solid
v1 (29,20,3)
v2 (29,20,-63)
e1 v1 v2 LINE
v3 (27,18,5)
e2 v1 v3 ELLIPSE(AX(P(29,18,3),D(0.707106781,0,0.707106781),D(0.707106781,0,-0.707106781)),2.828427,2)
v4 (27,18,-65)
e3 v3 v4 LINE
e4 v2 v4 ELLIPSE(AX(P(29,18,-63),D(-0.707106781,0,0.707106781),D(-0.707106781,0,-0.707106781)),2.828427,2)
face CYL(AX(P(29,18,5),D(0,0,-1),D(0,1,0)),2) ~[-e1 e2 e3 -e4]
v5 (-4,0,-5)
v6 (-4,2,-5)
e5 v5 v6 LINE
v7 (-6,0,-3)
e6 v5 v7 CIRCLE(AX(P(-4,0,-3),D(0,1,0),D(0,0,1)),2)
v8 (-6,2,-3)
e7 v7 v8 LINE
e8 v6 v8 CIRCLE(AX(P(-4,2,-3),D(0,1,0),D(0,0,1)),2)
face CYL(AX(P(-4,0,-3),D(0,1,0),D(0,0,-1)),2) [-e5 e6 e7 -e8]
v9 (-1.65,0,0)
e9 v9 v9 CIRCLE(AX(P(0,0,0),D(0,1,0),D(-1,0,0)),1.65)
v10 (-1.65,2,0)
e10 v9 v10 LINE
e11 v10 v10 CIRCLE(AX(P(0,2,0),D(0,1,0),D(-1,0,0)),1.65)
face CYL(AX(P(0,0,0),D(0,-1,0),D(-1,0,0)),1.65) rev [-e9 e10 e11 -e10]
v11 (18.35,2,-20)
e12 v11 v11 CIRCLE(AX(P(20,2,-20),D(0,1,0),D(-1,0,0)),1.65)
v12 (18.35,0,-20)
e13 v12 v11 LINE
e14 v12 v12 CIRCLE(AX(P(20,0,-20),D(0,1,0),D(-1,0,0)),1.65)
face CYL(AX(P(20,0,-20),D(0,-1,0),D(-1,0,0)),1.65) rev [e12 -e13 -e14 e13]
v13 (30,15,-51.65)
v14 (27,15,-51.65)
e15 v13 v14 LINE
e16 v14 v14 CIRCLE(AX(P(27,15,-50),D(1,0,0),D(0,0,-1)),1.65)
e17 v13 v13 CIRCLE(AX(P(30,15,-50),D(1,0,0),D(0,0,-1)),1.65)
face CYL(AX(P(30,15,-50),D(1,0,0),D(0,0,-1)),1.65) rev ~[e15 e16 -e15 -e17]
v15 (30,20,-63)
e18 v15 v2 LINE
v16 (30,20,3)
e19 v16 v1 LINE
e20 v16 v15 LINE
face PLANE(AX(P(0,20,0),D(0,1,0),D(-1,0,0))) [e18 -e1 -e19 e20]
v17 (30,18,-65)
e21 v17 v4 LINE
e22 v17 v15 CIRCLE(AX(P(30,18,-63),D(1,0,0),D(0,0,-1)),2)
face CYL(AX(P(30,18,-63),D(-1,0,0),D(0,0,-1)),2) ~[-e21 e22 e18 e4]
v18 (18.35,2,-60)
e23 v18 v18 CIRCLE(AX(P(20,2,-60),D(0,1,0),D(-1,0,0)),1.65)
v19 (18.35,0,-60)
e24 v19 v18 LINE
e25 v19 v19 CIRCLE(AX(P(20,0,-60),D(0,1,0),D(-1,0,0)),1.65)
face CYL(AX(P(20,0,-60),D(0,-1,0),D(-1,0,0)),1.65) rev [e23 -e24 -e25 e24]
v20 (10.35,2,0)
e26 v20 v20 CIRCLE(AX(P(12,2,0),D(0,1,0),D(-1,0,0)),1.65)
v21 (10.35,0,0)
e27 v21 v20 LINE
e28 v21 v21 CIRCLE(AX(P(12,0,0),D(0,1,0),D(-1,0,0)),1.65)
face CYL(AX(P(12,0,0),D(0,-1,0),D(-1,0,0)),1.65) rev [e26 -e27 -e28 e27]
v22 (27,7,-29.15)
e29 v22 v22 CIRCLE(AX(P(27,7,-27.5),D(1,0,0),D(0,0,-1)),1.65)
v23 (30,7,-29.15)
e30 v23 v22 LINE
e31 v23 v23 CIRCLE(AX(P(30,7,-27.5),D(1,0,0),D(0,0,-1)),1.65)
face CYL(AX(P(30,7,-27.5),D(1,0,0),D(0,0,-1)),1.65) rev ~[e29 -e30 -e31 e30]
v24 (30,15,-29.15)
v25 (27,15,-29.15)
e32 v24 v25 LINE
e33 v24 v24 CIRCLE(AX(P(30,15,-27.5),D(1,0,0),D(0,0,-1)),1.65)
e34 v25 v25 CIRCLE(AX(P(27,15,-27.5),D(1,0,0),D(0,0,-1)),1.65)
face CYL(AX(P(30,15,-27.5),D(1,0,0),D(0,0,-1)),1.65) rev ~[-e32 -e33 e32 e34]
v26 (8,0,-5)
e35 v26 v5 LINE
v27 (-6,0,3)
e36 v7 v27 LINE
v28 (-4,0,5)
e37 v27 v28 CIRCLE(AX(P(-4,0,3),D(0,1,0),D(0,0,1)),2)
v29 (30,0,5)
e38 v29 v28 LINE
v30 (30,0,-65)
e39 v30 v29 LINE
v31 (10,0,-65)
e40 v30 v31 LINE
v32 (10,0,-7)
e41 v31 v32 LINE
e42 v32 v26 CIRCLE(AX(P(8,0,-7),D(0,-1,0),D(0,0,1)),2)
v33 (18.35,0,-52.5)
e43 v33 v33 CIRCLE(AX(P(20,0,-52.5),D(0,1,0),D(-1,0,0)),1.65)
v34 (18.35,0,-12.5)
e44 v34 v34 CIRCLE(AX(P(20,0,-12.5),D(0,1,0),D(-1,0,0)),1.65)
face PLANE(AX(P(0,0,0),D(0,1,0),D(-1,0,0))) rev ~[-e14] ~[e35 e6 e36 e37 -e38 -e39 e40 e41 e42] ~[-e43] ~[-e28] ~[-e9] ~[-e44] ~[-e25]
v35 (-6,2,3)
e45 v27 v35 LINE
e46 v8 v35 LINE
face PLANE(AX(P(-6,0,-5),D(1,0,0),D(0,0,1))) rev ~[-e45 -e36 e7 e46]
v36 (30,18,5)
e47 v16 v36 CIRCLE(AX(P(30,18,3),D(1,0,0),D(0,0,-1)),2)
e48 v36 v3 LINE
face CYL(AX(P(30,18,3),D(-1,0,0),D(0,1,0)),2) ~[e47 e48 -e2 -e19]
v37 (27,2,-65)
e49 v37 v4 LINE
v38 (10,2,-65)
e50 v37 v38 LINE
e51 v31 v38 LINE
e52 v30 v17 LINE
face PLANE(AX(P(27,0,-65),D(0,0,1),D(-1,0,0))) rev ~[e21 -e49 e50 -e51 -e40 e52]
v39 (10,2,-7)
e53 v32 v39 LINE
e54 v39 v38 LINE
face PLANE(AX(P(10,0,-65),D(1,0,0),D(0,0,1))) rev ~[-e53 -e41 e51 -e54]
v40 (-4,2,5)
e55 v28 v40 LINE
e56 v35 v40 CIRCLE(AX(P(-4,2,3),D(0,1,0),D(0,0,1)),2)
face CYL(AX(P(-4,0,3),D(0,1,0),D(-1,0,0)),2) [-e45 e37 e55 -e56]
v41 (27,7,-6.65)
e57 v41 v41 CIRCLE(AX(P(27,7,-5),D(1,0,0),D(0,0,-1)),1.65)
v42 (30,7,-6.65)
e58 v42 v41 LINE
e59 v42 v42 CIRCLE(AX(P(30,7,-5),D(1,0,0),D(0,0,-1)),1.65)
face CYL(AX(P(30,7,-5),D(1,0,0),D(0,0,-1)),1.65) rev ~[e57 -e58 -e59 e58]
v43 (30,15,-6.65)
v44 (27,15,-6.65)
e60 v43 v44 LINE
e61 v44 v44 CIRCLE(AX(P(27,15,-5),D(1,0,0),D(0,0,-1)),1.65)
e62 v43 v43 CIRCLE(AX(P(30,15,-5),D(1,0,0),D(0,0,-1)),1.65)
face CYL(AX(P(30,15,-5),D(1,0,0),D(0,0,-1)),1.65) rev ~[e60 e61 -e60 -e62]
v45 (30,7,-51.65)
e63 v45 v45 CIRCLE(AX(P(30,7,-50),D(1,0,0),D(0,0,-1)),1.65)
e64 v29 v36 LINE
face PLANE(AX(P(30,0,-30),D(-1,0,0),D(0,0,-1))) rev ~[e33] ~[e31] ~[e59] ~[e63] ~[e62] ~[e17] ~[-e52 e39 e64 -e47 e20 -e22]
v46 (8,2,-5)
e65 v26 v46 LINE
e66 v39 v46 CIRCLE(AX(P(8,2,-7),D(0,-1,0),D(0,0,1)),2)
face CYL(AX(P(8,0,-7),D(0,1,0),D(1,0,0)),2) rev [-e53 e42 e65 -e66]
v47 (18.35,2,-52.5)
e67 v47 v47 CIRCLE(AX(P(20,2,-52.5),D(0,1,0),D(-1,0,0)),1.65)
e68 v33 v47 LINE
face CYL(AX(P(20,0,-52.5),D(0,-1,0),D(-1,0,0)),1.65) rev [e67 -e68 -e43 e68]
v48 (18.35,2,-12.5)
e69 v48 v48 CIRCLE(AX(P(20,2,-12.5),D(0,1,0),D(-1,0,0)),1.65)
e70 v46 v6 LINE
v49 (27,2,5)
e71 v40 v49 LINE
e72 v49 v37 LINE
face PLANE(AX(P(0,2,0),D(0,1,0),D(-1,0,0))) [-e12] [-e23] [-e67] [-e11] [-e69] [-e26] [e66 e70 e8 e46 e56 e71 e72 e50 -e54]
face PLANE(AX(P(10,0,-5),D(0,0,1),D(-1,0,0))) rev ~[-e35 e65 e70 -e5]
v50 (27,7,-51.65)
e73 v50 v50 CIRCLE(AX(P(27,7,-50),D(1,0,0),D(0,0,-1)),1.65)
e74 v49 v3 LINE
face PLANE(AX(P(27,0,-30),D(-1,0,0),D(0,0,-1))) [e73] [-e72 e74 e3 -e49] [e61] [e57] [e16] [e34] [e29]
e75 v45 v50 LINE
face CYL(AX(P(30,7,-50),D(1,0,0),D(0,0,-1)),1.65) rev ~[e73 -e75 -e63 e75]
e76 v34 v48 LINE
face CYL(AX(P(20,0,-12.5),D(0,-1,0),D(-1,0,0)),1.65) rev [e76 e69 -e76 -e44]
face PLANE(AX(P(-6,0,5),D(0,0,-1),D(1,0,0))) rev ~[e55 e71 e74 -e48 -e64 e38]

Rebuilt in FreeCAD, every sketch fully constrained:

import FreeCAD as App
import Part
import Sketcher
Q = App.Units.Quantity


def edges_at(feature, points):
    """Names of the edges that pass closest to the given points."""
    edges = feature.Shape.Edges
    near = lambda p: min(range(len(edges)), key=lambda i: edges[i].distToShape(Part.Vertex(*p))[0])
    return sorted({f"Edge{near(p) + 1}" for p in points})

doc = App.newDocument("Part")
body = doc.addObject("PartDesign::Body", "Body")

sketch1 = body.newObject("Sketcher::SketchObject", "Sketch")
sketch1.AttachmentSupport = (doc.getObject("XZ_Plane"), [""])
sketch1.MapMode = "FlatFace"
sketch1.addGeometry(Part.LineSegment(App.Vector(10, -65, 0), App.Vector(10, -5, 0)), False)
sketch1.addGeometry(Part.LineSegment(App.Vector(10, -5, 0), App.Vector(-6, -5, 0)), False)
sketch1.addGeometry(Part.LineSegment(App.Vector(-6, -5, 0), App.Vector(-6, 5, 0)), False)
sketch1.addGeometry(Part.LineSegment(App.Vector(-6, 5, 0), App.Vector(27, 5, 0)), False)
sketch1.addGeometry(Part.LineSegment(App.Vector(27, 5, 0), App.Vector(27, -65, 0)), False)
sketch1.addGeometry(Part.LineSegment(App.Vector(27, -65, 0), App.Vector(10, -65, 0)), False)
sketch1.addGeometry(Part.Circle(App.Vector(20, -60, 0), App.Vector(0, 0, 1), 1.6), False)
sketch1.addGeometry(Part.Circle(App.Vector(20, -52.5, 0), App.Vector(0, 0, 1), 1.6), False)
sketch1.addGeometry(Part.Circle(App.Vector(20, -12.5, 0), App.Vector(0, 0, 1), 1.6), False)
sketch1.addGeometry(Part.Circle(App.Vector(20, -20, 0), App.Vector(0, 0, 1), 1.6), False)
sketch1.addGeometry(Part.Circle(App.Vector(12, 0, 0), App.Vector(0, 0, 1), 1.6), False)
sketch1.addGeometry(Part.Circle(App.Vector(0, 0, 0), App.Vector(0, 0, 1), 1.6), False)
sketch1.addConstraint(Sketcher.Constraint("Coincident", 0, 2, 1, 1))
sketch1.addConstraint(Sketcher.Constraint("Coincident", 1, 2, 2, 1))
sketch1.addConstraint(Sketcher.Constraint("Coincident", 2, 2, 3, 1))
sketch1.addConstraint(Sketcher.Constraint("Coincident", 3, 2, 4, 1))
sketch1.addConstraint(Sketcher.Constraint("Coincident", 4, 2, 5, 1))
sketch1.addConstraint(Sketcher.Constraint("Coincident", 5, 2, 0, 1))
sketch1.addConstraint(Sketcher.Constraint("Vertical", 0))
sketch1.addConstraint(Sketcher.Constraint("Horizontal", 1))
sketch1.addConstraint(Sketcher.Constraint("Vertical", 2))
sketch1.addConstraint(Sketcher.Constraint("Horizontal", 3))
sketch1.addConstraint(Sketcher.Constraint("Vertical", 4))
sketch1.addConstraint(Sketcher.Constraint("Horizontal", 5))
sketch1.addConstraint(Sketcher.Constraint("Coincident", 11, 3, -1, 1))
sketch1.addConstraint(Sketcher.Constraint("Equal", 6, 7))
sketch1.addConstraint(Sketcher.Constraint("Equal", 7, 8))
sketch1.addConstraint(Sketcher.Constraint("Equal", 8, 9))
sketch1.addConstraint(Sketcher.Constraint("Equal", 9, 10))
sketch1.addConstraint(Sketcher.Constraint("Equal", 10, 11))
sketch1.addConstraint(Sketcher.Constraint("PointOnObject", 10, 3, -1))
sketch1.addConstraint(Sketcher.Constraint("Vertical", 6, 3, 7, 3))
sketch1.addConstraint(Sketcher.Constraint("Vertical", 7, 3, 8, 3))
sketch1.addConstraint(Sketcher.Constraint("Vertical", 8, 3, 9, 3))
sketch1.addConstraint(Sketcher.Constraint("Diameter", 6, Q("3.3 mm")))
sketch1.addConstraint(Sketcher.Constraint("DistanceX", -1, 1, 6, 3, Q("20 mm")))
sketch1.addConstraint(Sketcher.Constraint("DistanceY", 9, 3, -1, 1, Q("20 mm")))
sketch1.addConstraint(Sketcher.Constraint("DistanceX", -1, 1, 10, 3, Q("12 mm")))
sketch1.addConstraint(Sketcher.Constraint("DistanceY", 7, 3, 8, 3, Q("40 mm")))
sketch1.addConstraint(Sketcher.Constraint("DistanceY", 6, 3, 9, 3, Q("40 mm")))
sketch1.addConstraint(Sketcher.Constraint("DistanceY", 8, 3, -1, 1, Q("12.5 mm")))
sketch1.addConstraint(Sketcher.Constraint("DistanceY", 4, 2, 7, 3, Q("12.5 mm")))
sketch1.addConstraint(Sketcher.Constraint("DistanceX", 1, 2, 1, 1, Q("16 mm")))
sketch1.addConstraint(Sketcher.Constraint("DistanceX", 3, 1, 3, 2, Q("33 mm")))
sketch1.addConstraint(Sketcher.Constraint("DistanceY", 0, 1, 0, 2, Q("60 mm")))
sketch1.addConstraint(Sketcher.Constraint("DistanceY", 2, 1, 2, 2, Q("10 mm")))
sketch1.addConstraint(Sketcher.Constraint("DistanceX", -1, 1, 0, 2, Q("10 mm")))
pad1 = body.newObject("PartDesign::Pad", "Pad")
pad1.Profile = sketch1
pad1.Length = 2
pad1.Reversed = True

sketch2 = body.newObject("Sketcher::SketchObject", "Sketch001")
sketch2.AttachmentSupport = (doc.getObject("XZ_Plane"), [""])
sketch2.MapMode = "FlatFace"
sketch2.addGeometry(Part.LineSegment(App.Vector(27, -65, 0), App.Vector(27, 5, 0)), False)
sketch2.addGeometry(Part.LineSegment(App.Vector(27, 5, 0), App.Vector(30, 5, 0)), False)
sketch2.addGeometry(Part.LineSegment(App.Vector(30, 5, 0), App.Vector(30, -65, 0)), False)
sketch2.addGeometry(Part.LineSegment(App.Vector(30, -65, 0), App.Vector(27, -65, 0)), False)
sketch2.addConstraint(Sketcher.Constraint("Coincident", 0, 2, 1, 1))
sketch2.addConstraint(Sketcher.Constraint("Coincident", 1, 2, 2, 1))
sketch2.addConstraint(Sketcher.Constraint("Coincident", 2, 2, 3, 1))
sketch2.addConstraint(Sketcher.Constraint("Coincident", 3, 2, 0, 1))
sketch2.addConstraint(Sketcher.Constraint("Vertical", 0))
sketch2.addConstraint(Sketcher.Constraint("Horizontal", 1))
sketch2.addConstraint(Sketcher.Constraint("Vertical", 2))
sketch2.addConstraint(Sketcher.Constraint("Horizontal", 3))
sketch2.addConstraint(Sketcher.Constraint("DistanceX", 1, 1, 1, 2, Q("3 mm")))
sketch2.addConstraint(Sketcher.Constraint("DistanceY", 0, 1, 0, 2, Q("70 mm")))
sketch2.addConstraint(Sketcher.Constraint("DistanceX", -1, 1, 0, 2, Q("27 mm")))
sketch2.addConstraint(Sketcher.Constraint("DistanceY", -1, 1, 0, 2, Q("5 mm")))
pad2 = body.newObject("PartDesign::Pad", "Pad001")
pad2.Profile = sketch2
pad2.Length = 20
pad2.Reversed = True

sketch3 = body.newObject("Sketcher::SketchObject", "Sketch002")
sketch3.AttachmentSupport = (doc.getObject("YZ_Plane"), [""])
sketch3.MapMode = "FlatFace"
sketch3.AttachmentOffset = App.Placement(App.Vector(0, 0, 30), App.Rotation())
sketch3.addGeometry(Part.Circle(App.Vector(15, -5, 0), App.Vector(0, 0, 1), 1.6), False)
sketch3.addGeometry(Part.Circle(App.Vector(15, -50, 0), App.Vector(0, 0, 1), 1.6), False)
sketch3.addGeometry(Part.Circle(App.Vector(15, -27.5, 0), App.Vector(0, 0, 1), 1.6), False)
sketch3.addGeometry(Part.Circle(App.Vector(7, -5, 0), App.Vector(0, 0, 1), 1.6), False)
sketch3.addGeometry(Part.Circle(App.Vector(7, -50, 0), App.Vector(0, 0, 1), 1.6), False)
sketch3.addGeometry(Part.Circle(App.Vector(7, -27.5, 0), App.Vector(0, 0, 1), 1.6), False)
sketch3.addConstraint(Sketcher.Constraint("Equal", 0, 1))
sketch3.addConstraint(Sketcher.Constraint("Equal", 1, 2))
sketch3.addConstraint(Sketcher.Constraint("Equal", 2, 3))
sketch3.addConstraint(Sketcher.Constraint("Equal", 3, 4))
sketch3.addConstraint(Sketcher.Constraint("Equal", 4, 5))
sketch3.addConstraint(Sketcher.Constraint("Horizontal", 0, 3, 3, 3))
sketch3.addConstraint(Sketcher.Constraint("Horizontal", 1, 3, 4, 3))
sketch3.addConstraint(Sketcher.Constraint("Horizontal", 2, 3, 5, 3))
sketch3.addConstraint(Sketcher.Constraint("Vertical", 0, 3, 1, 3))
sketch3.addConstraint(Sketcher.Constraint("Vertical", 1, 3, 2, 3))
sketch3.addConstraint(Sketcher.Constraint("Vertical", 3, 3, 4, 3))
sketch3.addConstraint(Sketcher.Constraint("Vertical", 4, 3, 5, 3))
sketch3.addConstraint(Sketcher.Constraint("Diameter", 0, Q("3.3 mm")))
sketch3.addConstraint(Sketcher.Constraint("DistanceX", -1, 1, 0, 3, Q("15 mm")))
sketch3.addConstraint(Sketcher.Constraint("DistanceY", 0, 3, -1, 1, Q("5 mm")))
sketch3.addConstraint(Sketcher.Constraint("DistanceY", 1, 3, -1, 1, Q("50 mm")))
sketch3.addConstraint(Sketcher.Constraint("DistanceX", -1, 1, 3, 3, Q("7 mm")))
sketch3.addConstraint(Sketcher.Constraint("DistanceY", 2, 3, -1, 1, Q("27.5 mm")))
pocket1 = body.newObject("PartDesign::Pocket", "Pocket")
pocket1.Profile = sketch3
pocket1.Length = 20
doc.recompute()

fillet = body.newObject("PartDesign::Fillet", "Fillet")
fillet.Base = (pocket1, edges_at(pocket1, [
    (-6, 1, -5),
    (10, 1, -5),
    (27, 20, -30),
    (28.5, 20, 5),
    (28.5, 20, -65),
    (-6, 1, 5),
]))
fillet.Radius = 2

doc.recompute()
